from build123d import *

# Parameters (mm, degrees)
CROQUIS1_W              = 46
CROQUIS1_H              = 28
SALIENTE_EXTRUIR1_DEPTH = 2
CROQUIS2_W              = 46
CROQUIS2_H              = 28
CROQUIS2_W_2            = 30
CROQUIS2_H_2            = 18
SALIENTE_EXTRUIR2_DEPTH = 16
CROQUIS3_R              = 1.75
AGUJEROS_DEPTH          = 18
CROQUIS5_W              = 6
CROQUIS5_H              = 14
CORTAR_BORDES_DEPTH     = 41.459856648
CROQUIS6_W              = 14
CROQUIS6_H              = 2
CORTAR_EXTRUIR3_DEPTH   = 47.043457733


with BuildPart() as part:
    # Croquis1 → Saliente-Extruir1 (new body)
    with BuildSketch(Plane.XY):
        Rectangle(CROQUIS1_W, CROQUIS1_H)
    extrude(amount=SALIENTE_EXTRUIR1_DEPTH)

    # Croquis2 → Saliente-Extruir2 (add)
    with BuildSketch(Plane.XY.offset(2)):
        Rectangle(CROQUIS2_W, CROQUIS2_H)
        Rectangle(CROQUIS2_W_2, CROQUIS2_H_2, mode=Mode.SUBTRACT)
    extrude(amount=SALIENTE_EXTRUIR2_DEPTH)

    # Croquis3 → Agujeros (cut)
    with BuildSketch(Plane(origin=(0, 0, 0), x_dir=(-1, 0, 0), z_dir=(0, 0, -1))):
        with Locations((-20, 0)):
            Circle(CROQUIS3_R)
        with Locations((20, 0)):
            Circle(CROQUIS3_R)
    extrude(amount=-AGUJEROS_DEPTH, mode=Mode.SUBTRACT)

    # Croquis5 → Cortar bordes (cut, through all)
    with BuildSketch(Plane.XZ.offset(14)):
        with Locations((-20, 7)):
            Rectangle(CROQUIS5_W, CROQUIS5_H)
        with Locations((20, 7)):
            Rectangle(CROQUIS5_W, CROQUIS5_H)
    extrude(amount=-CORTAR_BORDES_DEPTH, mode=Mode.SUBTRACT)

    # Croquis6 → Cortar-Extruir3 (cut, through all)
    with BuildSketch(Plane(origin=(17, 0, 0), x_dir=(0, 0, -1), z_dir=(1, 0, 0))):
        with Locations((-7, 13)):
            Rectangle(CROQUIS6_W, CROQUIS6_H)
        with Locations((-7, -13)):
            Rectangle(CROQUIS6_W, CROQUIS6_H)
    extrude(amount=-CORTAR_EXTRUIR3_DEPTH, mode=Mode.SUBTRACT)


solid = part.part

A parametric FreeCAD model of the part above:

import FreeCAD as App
import Part
import Sketcher

V = App.Vector
Q = App.Units.Quantity


def add_polygon(sketch, points):
    """Adds a closed chain of lines whose ends are joined by coincident constraints."""
    first, n = sketch.GeometryCount, len(points)
    for a, b in zip(points, points[1:] + points[:1]):
        sketch.addGeometry(Part.LineSegment(App.Vector(*a, 0), App.Vector(*b, 0)), False)
    for i in range(n):
        sketch.addConstraint(Sketcher.Constraint("Coincident", first + i, 2, first + (i + 1) % n, 1))

doc = App.newDocument("Part")
params = doc.addObject("Spreadsheet::Sheet", "Params")
for row, (alias, value) in enumerate([
    ("sketch1_width", "46 mm"),
    ("sketch1_height", "28 mm"),
    ("pad1_length", "2 mm"),
    ("sketch2_width", "46 mm"),
    ("sketch2_width2", "30 mm"),
    ("sketch2_height", "28 mm"),
    ("sketch2_height2", "18 mm"),
    ("pad2_length", "16 mm"),
    ("sketch3_diameter", "3.5 mm"),
    ("pocket1_length", "18 mm"),
    ("sketch4_width", "6 mm"),
    ("sketch4_height", "14 mm"),
    ("sketch5_width", "2 mm"),
    ("sketch5_height", "14 mm"),
], start=1):
    params.set(f"A{row}", alias)
    params.set(f"B{row}", "=" + value)
    params.setAlias(f"B{row}", alias)

body = doc.addObject("PartDesign::Body", "Body")

# Sketch on XY plane
sketch1 = doc.addObject("Sketcher::SketchObject", "Sketch")
body.addObject(sketch1)
sketch1.AttachmentSupport = (doc.XY_Plane, [""])
sketch1.MapMode = "FlatFace"
add_polygon(sketch1, [(-23, 14), (-23, -14), (23, -14), (23, 14)])  # lines 0-3
sketch1.addConstraint([
    Sketcher.Constraint("Vertical", 0),
    Sketcher.Constraint("Horizontal", 1),
    Sketcher.Constraint("Vertical", 2),
    Sketcher.Constraint("Horizontal", 3),
    Sketcher.Constraint("Symmetric", 0, 2, 2, 2, -1, 1),
    Sketcher.Constraint("DistanceX", 1, 1, 1, 2, Q("46 mm")),
    Sketcher.Constraint("DistanceY", 0, 2, 0, 1, Q("28 mm")),
])
sketch1.setExpression("Constraints[9]", "Params.sketch1_width")
sketch1.setExpression("Constraints[10]", "Params.sketch1_height")
pad1 = doc.addObject("PartDesign::Pad", "Pad")
body.addObject(pad1)
pad1.Profile = sketch1
pad1.setExpression("Length", "Params.pad1_length")

# Sketch on XY plane
sketch2 = doc.addObject("Sketcher::SketchObject", "Sketch001")
body.addObject(sketch2)
sketch2.AttachmentSupport = (doc.XY_Plane, [""])
sketch2.MapMode = "FlatFace"
sketch2.AttachmentOffset = App.Placement(V(0, 0, 2), App.Rotation())
add_polygon(sketch2, [(-23, 14), (-23, -14), (23, -14), (23, 14)])  # lines 0-3
add_polygon(sketch2, [(15, -9), (-15, -9), (-15, 9), (15, 9)])  # lines 4-7
sketch2.addConstraint([
    Sketcher.Constraint("Vertical", 0),
    Sketcher.Constraint("Horizontal", 1),
    Sketcher.Constraint("Vertical", 2),
    Sketcher.Constraint("Horizontal", 3),
    Sketcher.Constraint("Horizontal", 4),
    Sketcher.Constraint("Vertical", 5),
    Sketcher.Constraint("Horizontal", 6),
    Sketcher.Constraint("Vertical", 7),
    Sketcher.Constraint("Symmetric", 0, 2, 2, 2, -1, 1),
    Sketcher.Constraint("Symmetric", 4, 2, 6, 2, -1, 1),
    Sketcher.Constraint("DistanceX", 1, 1, 1, 2, Q("46 mm")),
    Sketcher.Constraint("DistanceX", 4, 2, 4, 1, Q("30 mm")),
    Sketcher.Constraint("DistanceY", 0, 2, 0, 1, Q("28 mm")),
    Sketcher.Constraint("DistanceY", 5, 1, 5, 2, Q("18 mm")),
])
sketch2.setExpression("Constraints[18]", "Params.sketch2_width")
sketch2.setExpression("Constraints[19]", "Params.sketch2_width2")
sketch2.setExpression("Constraints[20]", "Params.sketch2_height")
sketch2.setExpression("Constraints[21]", "Params.sketch2_height2")
pad2 = doc.addObject("PartDesign::Pad", "Pad001")
body.addObject(pad2)
pad2.Profile = sketch2
pad2.setExpression("Length", "Params.pad2_length")

# Sketch on XY plane
sketch3 = doc.addObject("Sketcher::SketchObject", "Sketch002")
body.addObject(sketch3)
sketch3.AttachmentSupport = (doc.XY_Plane, [""])
sketch3.MapMode = "FlatFace"
sketch3.addGeometry([
    Part.Circle(V(20, 0, 0), V(0, 0, 1), 1.8),
    Part.Circle(V(-20, 0, 0), V(0, 0, 1), 1.8),
], False)
sketch3.addConstraint([
    Sketcher.Constraint("Equal", 0, 1),
    Sketcher.Constraint("Symmetric", 0, 3, 1, 3, -1, 1),
    Sketcher.Constraint("PointOnObject", 0, 3, -1),
    Sketcher.Constraint("Diameter", 0, Q("3.5 mm")),
    Sketcher.Constraint("DistanceX", -1, 1, 0, 3, Q("20 mm")),
])
sketch3.setExpression("Constraints[3]", "Params.sketch3_diameter")
pocket1 = doc.addObject("PartDesign::Pocket", "Pocket")
body.addObject(pocket1)
pocket1.Profile = sketch3
pocket1.setExpression("Length", "Params.pocket1_length")
pocket1.Reversed = True

# Sketch on XZ plane
sketch4 = doc.addObject("Sketcher::SketchObject", "Sketch003")
body.addObject(sketch4)
sketch4.AttachmentSupport = (doc.XZ_Plane, [""])
sketch4.MapMode = "FlatFace"
sketch4.AttachmentOffset = App.Placement(V(0, 0, 14), App.Rotation())
add_polygon(sketch4, [(-23, 14), (-23, 0), (-17, 0), (-17, 14)])  # lines 0-3
add_polygon(sketch4, [(17, 14), (17, 0), (23, 0), (23, 14)])  # lines 4-7
sketch4.addConstraint([
    Sketcher.Constraint("Vertical", 0),
    Sketcher.Constraint("Horizontal", 1),
    Sketcher.Constraint("Vertical", 2),
    Sketcher.Constraint("Horizontal", 3),
    Sketcher.Constraint("Vertical", 4),
    Sketcher.Constraint("Horizontal", 5),
    Sketcher.Constraint("Vertical", 6),
    Sketcher.Constraint("Horizontal", 7),
    Sketcher.Constraint("Symmetric", 1, 2, 4, 2, -1, 1),
    Sketcher.Constraint("Symmetric", 0, 2, 5, 2, -2),
    Sketcher.Constraint("Horizontal", 3, 2, 6, 2),
    Sketcher.Constraint("DistanceX", 1, 1, 1, 2, Q("6 mm")),
    Sketcher.Constraint("DistanceY", 0, 2, 0, 1, Q("14 mm")),
    Sketcher.Constraint("DistanceX", 0, 2, -1, 1, Q("23 mm")),
])
sketch4.setExpression("Constraints[19]", "Params.sketch4_width")
sketch4.setExpression("Constraints[20]", "Params.sketch4_height")
pocket2 = doc.addObject("PartDesign::Pocket", "Pocket001")
body.addObject(pocket2)
pocket2.Profile = sketch4
pocket2.Type = "ThroughAll"

# Sketch on YZ plane
sketch5 = doc.addObject("Sketcher::SketchObject", "Sketch004")
body.addObject(sketch5)
sketch5.AttachmentSupport = (doc.YZ_Plane, [""])
sketch5.MapMode = "FlatFace"
sketch5.AttachmentOffset = App.Placement(V(0, 0, 17), App.Rotation())
add_polygon(sketch5, [(14, 14), (12, 14), (12, 0), (14, 0)])  # lines 0-3
add_polygon(sketch5, [(-12, 14), (-14, 14), (-14, 0), (-12, 0)])  # lines 4-7
sketch5.addConstraint([
    Sketcher.Constraint("Horizontal", 0),
    Sketcher.Constraint("Vertical", 1),
    Sketcher.Constraint("Horizontal", 2),
    Sketcher.Constraint("Vertical", 3),
    Sketcher.Constraint("Horizontal", 4),
    Sketcher.Constraint("Vertical", 5),
    Sketcher.Constraint("Horizontal", 6),
    Sketcher.Constraint("Vertical", 7),
    Sketcher.Constraint("Symmetric", 2, 2, 5, 2, -1, 1),
    Sketcher.Constraint("Symmetric", 1, 2, 6, 2, -2),
    Sketcher.Constraint("Horizontal", 3, 2, 4, 2),
    Sketcher.Constraint("DistanceX", 0, 2, 0, 1, Q("2 mm")),
    Sketcher.Constraint("DistanceY", 1, 2, 1, 1, Q("14 mm")),
    Sketcher.Constraint("DistanceX", -1, 1, 0, 2, Q("12 mm")),
])
sketch5.setExpression("Constraints[19]", "Params.sketch5_width")
sketch5.setExpression("Constraints[20]", "Params.sketch5_height")
pocket3 = doc.addObject("PartDesign::Pocket", "Pocket002")
body.addObject(pocket3)
pocket3.Profile = sketch5
pocket3.Type = "ThroughAll"

doc.recompute()
